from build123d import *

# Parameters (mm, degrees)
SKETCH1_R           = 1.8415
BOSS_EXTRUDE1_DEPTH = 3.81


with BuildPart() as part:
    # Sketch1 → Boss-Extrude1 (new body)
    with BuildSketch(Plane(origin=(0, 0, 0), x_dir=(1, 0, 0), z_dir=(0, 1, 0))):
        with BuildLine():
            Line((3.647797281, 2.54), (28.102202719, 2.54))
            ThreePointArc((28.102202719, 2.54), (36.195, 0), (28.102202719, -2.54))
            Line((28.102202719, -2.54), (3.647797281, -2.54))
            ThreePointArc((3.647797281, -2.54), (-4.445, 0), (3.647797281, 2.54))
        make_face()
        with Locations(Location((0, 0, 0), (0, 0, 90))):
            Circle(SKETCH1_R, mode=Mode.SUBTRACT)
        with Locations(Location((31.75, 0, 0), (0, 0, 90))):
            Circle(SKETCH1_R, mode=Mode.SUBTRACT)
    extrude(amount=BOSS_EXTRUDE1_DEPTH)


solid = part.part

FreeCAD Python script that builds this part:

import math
import FreeCAD as App
import Part
import Sketcher
Q = App.Units.Quantity

doc = App.newDocument("Part")
body = doc.addObject("PartDesign::Body", "Body")

# Sketch on XZ plane
sketch1 = body.newObject("Sketcher::SketchObject", "Sketch")
sketch1.AttachmentSupport = (doc.getObject("XZ_Plane"), [""])
sketch1.MapMode = "FlatFace"
sketch1.addGeometry([
    Part.LineSegment(App.Vector(28.102203, -2.54, 0), App.Vector(3.647797, -2.54, 0)),  # 0
    Part.ArcOfCircle(Part.Circle(App.Vector(0, 0, 0), App.Vector(0, 0, 1), 4.445), math.radians(34.849905), math.radians(325.150095)),  # 1
    Part.LineSegment(App.Vector(3.647797, 2.54, 0), App.Vector(28.102203, 2.54, 0)),  # 2
    Part.ArcOfCircle(Part.Circle(App.Vector(31.75, 0, 0), App.Vector(0, 0, 1), 4.445), math.radians(-145.150095), math.radians(145.150095)),  # 3
    Part.Circle(App.Vector(31.75, 0, 0), App.Vector(0, 0, 1), 1.8415),  # 4
    Part.Circle(App.Vector(0, 0, 0), App.Vector(0, 0, 1), 1.8415),  # 5
], False)
sketch1.addConstraint([
    Sketcher.Constraint("Coincident", 0, 2, 1, 2),
    Sketcher.Constraint("Coincident", 1, 1, 2, 1),
    Sketcher.Constraint("Coincident", 2, 2, 3, 2),
    Sketcher.Constraint("Coincident", 3, 1, 0, 1),
    Sketcher.Constraint("Horizontal", 0),
    Sketcher.Constraint("Horizontal", 2),
    Sketcher.Constraint("Coincident", 1, 3, -1, 1),
    Sketcher.Constraint("Coincident", 5, 3, -1, 1),
    Sketcher.Constraint("Coincident", 4, 3, 3, 3),
    Sketcher.Constraint("Equal", 1, 3),
    Sketcher.Constraint("Equal", 4, 5),
    Sketcher.Constraint("Symmetric", 2, 2, 3, 1, -1),
    Sketcher.Constraint("Diameter", 4, Q("0.145 in")),
    Sketcher.Constraint("Radius", 1, Q("0.175 in")),
    Sketcher.Constraint("DistanceY", 0, 2, -1, 1, Q("0.1 in")),
    Sketcher.Constraint("DistanceX", -1, 1, 3, 3, Q("1.25 in")),
])
pad1 = body.newObject("PartDesign::Pad", "Pad")
pad1.Profile = sketch1
pad1.Length = Q("0.15 in")
pad1.Reversed = True

doc.recompute()
